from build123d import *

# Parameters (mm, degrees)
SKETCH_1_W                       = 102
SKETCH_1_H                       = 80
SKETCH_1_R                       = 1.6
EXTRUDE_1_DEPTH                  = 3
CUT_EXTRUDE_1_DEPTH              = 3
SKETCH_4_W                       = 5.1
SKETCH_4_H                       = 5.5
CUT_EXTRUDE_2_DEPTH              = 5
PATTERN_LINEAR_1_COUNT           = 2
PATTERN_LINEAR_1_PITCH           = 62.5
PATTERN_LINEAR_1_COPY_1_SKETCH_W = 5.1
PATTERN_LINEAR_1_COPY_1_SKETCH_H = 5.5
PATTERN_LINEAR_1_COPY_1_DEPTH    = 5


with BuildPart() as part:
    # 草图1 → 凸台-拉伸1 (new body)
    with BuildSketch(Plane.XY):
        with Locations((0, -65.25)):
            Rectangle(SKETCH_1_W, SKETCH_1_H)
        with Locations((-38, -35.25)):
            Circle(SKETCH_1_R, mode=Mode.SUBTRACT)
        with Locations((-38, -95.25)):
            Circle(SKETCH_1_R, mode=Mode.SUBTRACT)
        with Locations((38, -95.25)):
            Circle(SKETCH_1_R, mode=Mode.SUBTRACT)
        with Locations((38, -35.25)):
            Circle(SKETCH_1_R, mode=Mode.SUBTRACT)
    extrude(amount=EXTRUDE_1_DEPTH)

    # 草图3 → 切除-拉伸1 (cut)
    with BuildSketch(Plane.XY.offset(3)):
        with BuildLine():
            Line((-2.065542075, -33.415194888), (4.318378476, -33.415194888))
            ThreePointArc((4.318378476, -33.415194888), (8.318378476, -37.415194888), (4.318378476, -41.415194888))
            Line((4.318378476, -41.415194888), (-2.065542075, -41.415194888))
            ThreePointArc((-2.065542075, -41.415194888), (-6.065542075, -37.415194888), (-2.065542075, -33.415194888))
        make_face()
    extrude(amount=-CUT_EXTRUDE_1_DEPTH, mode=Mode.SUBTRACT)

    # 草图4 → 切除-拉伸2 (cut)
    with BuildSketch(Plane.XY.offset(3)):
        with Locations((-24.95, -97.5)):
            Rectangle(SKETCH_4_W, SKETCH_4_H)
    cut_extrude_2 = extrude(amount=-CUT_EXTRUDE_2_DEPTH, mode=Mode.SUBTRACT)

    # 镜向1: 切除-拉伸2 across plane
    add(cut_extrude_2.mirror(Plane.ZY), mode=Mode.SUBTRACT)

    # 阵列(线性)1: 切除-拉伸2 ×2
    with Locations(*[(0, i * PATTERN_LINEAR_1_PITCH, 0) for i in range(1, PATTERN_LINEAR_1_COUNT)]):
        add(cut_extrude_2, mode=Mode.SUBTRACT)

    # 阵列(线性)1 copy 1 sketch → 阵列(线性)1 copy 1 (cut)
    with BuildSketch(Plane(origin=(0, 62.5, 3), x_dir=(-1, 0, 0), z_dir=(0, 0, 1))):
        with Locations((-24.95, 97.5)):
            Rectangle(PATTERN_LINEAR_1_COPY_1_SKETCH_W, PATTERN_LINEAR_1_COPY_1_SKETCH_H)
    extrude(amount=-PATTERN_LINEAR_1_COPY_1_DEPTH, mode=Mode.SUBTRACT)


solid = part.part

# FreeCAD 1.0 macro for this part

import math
import FreeCAD as App
import Part
import Sketcher

V = App.Vector
Q = App.Units.Quantity


def add_polygon(sketch, points):
    """Adds a closed chain of lines whose ends are joined by coincident constraints."""
    first, n = sketch.GeometryCount, len(points)
    for a, b in zip(points, points[1:] + points[:1]):
        sketch.addGeometry(Part.LineSegment(App.Vector(*a, 0), App.Vector(*b, 0)), False)
    for i in range(n):
        sketch.addConstraint(Sketcher.Constraint("Coincident", first + i, 2, first + (i + 1) % n, 1))

doc = App.newDocument("Part")
body = doc.addObject("PartDesign::Body", "Body")

sketch1 = body.newObject("Sketcher::SketchObject", "Sketch")
sketch1.AttachmentSupport = (doc.getObject("XY_Plane"), [""])
sketch1.MapMode = "FlatFace"
add_polygon(sketch1, [(-51, -25.2), (-51, -105.2), (51, -105.2), (51, -25.2)])
sketch1.addGeometry(Part.Circle(V(-38, -95.2, 0), V(0, 0, 1), 1.6), False)
sketch1.addGeometry(Part.Circle(V(38, -95.2, 0), V(0, 0, 1), 1.6), False)
sketch1.addGeometry(Part.Circle(V(-38, -35.2, 0), V(0, 0, 1), 1.6), False)
sketch1.addGeometry(Part.Circle(V(38, -35.2, 0), V(0, 0, 1), 1.6), False)
sketch1.addConstraint(Sketcher.Constraint("Vertical", 0))
sketch1.addConstraint(Sketcher.Constraint("Horizontal", 1))
sketch1.addConstraint(Sketcher.Constraint("Vertical", 2))
sketch1.addConstraint(Sketcher.Constraint("Horizontal", 3))
sketch1.addConstraint(Sketcher.Constraint("Equal", 4, 5))
sketch1.addConstraint(Sketcher.Constraint("Equal", 5, 6))
sketch1.addConstraint(Sketcher.Constraint("Equal", 6, 7))
sketch1.addConstraint(Sketcher.Constraint("Symmetric", 4, 3, 5, 3, -2))
sketch1.addConstraint(Sketcher.Constraint("Symmetric", 6, 3, 7, 3, -2))
sketch1.addConstraint(Sketcher.Constraint("Vertical", 4, 3, 6, 3))
sketch1.addConstraint(Sketcher.Constraint("Diameter", 4, Q("3.2 mm")))
sketch1.addConstraint(Sketcher.Constraint("DistanceX", 1, 1, 1, 2, Q("102 mm")))
sketch1.addConstraint(Sketcher.Constraint("DistanceY", 0, 2, 0, 1, Q("80 mm")))
sketch1.addConstraint(Sketcher.Constraint("DistanceX", 4, 3, -1, 1, Q("38 mm")))
sketch1.addConstraint(Sketcher.Constraint("DistanceX", 0, 2, -1, 1, Q("51 mm")))
sketch1.addConstraint(Sketcher.Constraint("DistanceY", 4, 3, 6, 3, Q("60 mm")))
sketch1.addConstraint(Sketcher.Constraint("DistanceY", 0, 2, 4, 3, Q("10 mm")))
sketch1.addConstraint(Sketcher.Constraint("DistanceY", 4, 3, -1, 1, Q("95.25 mm")))
pad1 = body.newObject("PartDesign::Pad", "Pad")
pad1.Profile = sketch1
pad1.Length = 3

sketch2 = body.newObject("Sketcher::SketchObject", "Sketch001")
sketch2.AttachmentSupport = (doc.getObject("XY_Plane"), [""])
sketch2.MapMode = "FlatFace"
sketch2.AttachmentOffset = App.Placement(V(0, 0, 3), App.Rotation())
sketch2.addGeometry(Part.LineSegment(V(4.3, -33.4, 0), V(-2.1, -33.4, 0)), False)
sketch2.addGeometry(Part.ArcOfCircle(Part.Circle(V(-2.1, -37.4, 0), V(0, 0, 1), 4), math.radians(90), math.radians(270)), False)
sketch2.addGeometry(Part.LineSegment(V(-2.1, -41.4, 0), V(4.3, -41.4, 0)), False)
sketch2.addGeometry(Part.ArcOfCircle(Part.Circle(V(4.3, -37.4, 0), V(0, 0, 1), 4), math.radians(-90), math.radians(90)), False)
sketch2.addConstraint(Sketcher.Constraint("Tangent", 0, 2, 1, 1))
sketch2.addConstraint(Sketcher.Constraint("Tangent", 1, 2, 2, 1))
sketch2.addConstraint(Sketcher.Constraint("Tangent", 2, 2, 3, 1))
sketch2.addConstraint(Sketcher.Constraint("Tangent", 3, 2, 0, 1))
sketch2.addConstraint(Sketcher.Constraint("Horizontal", 0))
sketch2.addConstraint(Sketcher.Constraint("Horizontal", 2))
sketch2.addConstraint(Sketcher.Constraint("Radius", 1, Q("4 mm")))
sketch2.addConstraint(Sketcher.Constraint("DistanceX", 0, 2, 0, 1, Q("6.383921 mm")))
sketch2.addConstraint(Sketcher.Constraint("DistanceX", -1, 1, 3, 3, Q("4.318378 mm")))
sketch2.addConstraint(Sketcher.Constraint("DistanceY", 1, 3, -1, 1, Q("37.415195 mm")))
pocket1 = body.newObject("PartDesign::Pocket", "Pocket")
pocket1.Profile = sketch2
pocket1.Length = 3

sketch3 = body.newObject("Sketcher::SketchObject", "Sketch002")
sketch3.AttachmentSupport = (doc.getObject("XY_Plane"), [""])
sketch3.MapMode = "FlatFace"
sketch3.AttachmentOffset = App.Placement(V(0, 0, 3), App.Rotation())
add_polygon(sketch3, [(-28, -95), (-28, -100), (-22, -100), (-22, -95)])
sketch3.addConstraint(Sketcher.Constraint("Vertical", 0))
sketch3.addConstraint(Sketcher.Constraint("Horizontal", 1))
sketch3.addConstraint(Sketcher.Constraint("Vertical", 2))
sketch3.addConstraint(Sketcher.Constraint("Horizontal", 3))
sketch3.addConstraint(Sketcher.Constraint("DistanceX", 1, 1, 1, 2, Q("5.1 mm")))
sketch3.addConstraint(Sketcher.Constraint("DistanceY", 0, 2, 0, 1, Q("5.5 mm")))
sketch3.addConstraint(Sketcher.Constraint("DistanceX", 0, 2, -1, 1, Q("27.5 mm")))
sketch3.addConstraint(Sketcher.Constraint("DistanceY", 0, 2, -1, 1, Q("100.25 mm")))
pocket2 = body.newObject("PartDesign::Pocket", "Pocket001")
pocket2.Profile = sketch3
pocket2.Length = 5
doc.recompute()

mirrored = body.newObject("PartDesign::Mirrored", "Mirrored")
mirrored.Originals = [pocket2]
mirrored.MirrorPlane = (doc.getObject("YZ_Plane"), [""])
body.Tip = mirrored
doc.recompute()

linearpattern = body.newObject("PartDesign::LinearPattern", "LinearPattern")
linearpattern.Originals = [pocket2]
linearpattern.Direction = (doc.getObject("Y_Axis"), [""])
linearpattern.Mode = "offset"
linearpattern.Offset = 62.5
linearpattern.Occurrences = 2
body.Tip = linearpattern

sketch4 = body.newObject("Sketcher::SketchObject", "Sketch003")
sketch4.AttachmentSupport = (doc.getObject("XY_Plane"), [""])
sketch4.MapMode = "FlatFace"
sketch4.AttachmentOffset = App.Placement(V(0, 0, 3), App.Rotation())
add_polygon(sketch4, [(28, -38), (28, -32), (22, -32), (22, -38)])
sketch4.addConstraint(Sketcher.Constraint("Vertical", 0))
sketch4.addConstraint(Sketcher.Constraint("Horizontal", 1))
sketch4.addConstraint(Sketcher.Constraint("Vertical", 2))
sketch4.addConstraint(Sketcher.Constraint("Horizontal", 3))
sketch4.addConstraint(Sketcher.Constraint("DistanceX", 1, 2, 1, 1, Q("5.1 mm")))
sketch4.addConstraint(Sketcher.Constraint("DistanceY", 0, 1, 0, 2, Q("5.5 mm")))
sketch4.addConstraint(Sketcher.Constraint("DistanceX", -1, 1, 0, 2, Q("27.5 mm")))
sketch4.addConstraint(Sketcher.Constraint("DistanceY", 0, 2, -1, 1, Q("32.25 mm")))
pocket3 = body.newObject("PartDesign::Pocket", "Pocket002")
pocket3.Profile = sketch4
pocket3.Length = 5

doc.recompute()
